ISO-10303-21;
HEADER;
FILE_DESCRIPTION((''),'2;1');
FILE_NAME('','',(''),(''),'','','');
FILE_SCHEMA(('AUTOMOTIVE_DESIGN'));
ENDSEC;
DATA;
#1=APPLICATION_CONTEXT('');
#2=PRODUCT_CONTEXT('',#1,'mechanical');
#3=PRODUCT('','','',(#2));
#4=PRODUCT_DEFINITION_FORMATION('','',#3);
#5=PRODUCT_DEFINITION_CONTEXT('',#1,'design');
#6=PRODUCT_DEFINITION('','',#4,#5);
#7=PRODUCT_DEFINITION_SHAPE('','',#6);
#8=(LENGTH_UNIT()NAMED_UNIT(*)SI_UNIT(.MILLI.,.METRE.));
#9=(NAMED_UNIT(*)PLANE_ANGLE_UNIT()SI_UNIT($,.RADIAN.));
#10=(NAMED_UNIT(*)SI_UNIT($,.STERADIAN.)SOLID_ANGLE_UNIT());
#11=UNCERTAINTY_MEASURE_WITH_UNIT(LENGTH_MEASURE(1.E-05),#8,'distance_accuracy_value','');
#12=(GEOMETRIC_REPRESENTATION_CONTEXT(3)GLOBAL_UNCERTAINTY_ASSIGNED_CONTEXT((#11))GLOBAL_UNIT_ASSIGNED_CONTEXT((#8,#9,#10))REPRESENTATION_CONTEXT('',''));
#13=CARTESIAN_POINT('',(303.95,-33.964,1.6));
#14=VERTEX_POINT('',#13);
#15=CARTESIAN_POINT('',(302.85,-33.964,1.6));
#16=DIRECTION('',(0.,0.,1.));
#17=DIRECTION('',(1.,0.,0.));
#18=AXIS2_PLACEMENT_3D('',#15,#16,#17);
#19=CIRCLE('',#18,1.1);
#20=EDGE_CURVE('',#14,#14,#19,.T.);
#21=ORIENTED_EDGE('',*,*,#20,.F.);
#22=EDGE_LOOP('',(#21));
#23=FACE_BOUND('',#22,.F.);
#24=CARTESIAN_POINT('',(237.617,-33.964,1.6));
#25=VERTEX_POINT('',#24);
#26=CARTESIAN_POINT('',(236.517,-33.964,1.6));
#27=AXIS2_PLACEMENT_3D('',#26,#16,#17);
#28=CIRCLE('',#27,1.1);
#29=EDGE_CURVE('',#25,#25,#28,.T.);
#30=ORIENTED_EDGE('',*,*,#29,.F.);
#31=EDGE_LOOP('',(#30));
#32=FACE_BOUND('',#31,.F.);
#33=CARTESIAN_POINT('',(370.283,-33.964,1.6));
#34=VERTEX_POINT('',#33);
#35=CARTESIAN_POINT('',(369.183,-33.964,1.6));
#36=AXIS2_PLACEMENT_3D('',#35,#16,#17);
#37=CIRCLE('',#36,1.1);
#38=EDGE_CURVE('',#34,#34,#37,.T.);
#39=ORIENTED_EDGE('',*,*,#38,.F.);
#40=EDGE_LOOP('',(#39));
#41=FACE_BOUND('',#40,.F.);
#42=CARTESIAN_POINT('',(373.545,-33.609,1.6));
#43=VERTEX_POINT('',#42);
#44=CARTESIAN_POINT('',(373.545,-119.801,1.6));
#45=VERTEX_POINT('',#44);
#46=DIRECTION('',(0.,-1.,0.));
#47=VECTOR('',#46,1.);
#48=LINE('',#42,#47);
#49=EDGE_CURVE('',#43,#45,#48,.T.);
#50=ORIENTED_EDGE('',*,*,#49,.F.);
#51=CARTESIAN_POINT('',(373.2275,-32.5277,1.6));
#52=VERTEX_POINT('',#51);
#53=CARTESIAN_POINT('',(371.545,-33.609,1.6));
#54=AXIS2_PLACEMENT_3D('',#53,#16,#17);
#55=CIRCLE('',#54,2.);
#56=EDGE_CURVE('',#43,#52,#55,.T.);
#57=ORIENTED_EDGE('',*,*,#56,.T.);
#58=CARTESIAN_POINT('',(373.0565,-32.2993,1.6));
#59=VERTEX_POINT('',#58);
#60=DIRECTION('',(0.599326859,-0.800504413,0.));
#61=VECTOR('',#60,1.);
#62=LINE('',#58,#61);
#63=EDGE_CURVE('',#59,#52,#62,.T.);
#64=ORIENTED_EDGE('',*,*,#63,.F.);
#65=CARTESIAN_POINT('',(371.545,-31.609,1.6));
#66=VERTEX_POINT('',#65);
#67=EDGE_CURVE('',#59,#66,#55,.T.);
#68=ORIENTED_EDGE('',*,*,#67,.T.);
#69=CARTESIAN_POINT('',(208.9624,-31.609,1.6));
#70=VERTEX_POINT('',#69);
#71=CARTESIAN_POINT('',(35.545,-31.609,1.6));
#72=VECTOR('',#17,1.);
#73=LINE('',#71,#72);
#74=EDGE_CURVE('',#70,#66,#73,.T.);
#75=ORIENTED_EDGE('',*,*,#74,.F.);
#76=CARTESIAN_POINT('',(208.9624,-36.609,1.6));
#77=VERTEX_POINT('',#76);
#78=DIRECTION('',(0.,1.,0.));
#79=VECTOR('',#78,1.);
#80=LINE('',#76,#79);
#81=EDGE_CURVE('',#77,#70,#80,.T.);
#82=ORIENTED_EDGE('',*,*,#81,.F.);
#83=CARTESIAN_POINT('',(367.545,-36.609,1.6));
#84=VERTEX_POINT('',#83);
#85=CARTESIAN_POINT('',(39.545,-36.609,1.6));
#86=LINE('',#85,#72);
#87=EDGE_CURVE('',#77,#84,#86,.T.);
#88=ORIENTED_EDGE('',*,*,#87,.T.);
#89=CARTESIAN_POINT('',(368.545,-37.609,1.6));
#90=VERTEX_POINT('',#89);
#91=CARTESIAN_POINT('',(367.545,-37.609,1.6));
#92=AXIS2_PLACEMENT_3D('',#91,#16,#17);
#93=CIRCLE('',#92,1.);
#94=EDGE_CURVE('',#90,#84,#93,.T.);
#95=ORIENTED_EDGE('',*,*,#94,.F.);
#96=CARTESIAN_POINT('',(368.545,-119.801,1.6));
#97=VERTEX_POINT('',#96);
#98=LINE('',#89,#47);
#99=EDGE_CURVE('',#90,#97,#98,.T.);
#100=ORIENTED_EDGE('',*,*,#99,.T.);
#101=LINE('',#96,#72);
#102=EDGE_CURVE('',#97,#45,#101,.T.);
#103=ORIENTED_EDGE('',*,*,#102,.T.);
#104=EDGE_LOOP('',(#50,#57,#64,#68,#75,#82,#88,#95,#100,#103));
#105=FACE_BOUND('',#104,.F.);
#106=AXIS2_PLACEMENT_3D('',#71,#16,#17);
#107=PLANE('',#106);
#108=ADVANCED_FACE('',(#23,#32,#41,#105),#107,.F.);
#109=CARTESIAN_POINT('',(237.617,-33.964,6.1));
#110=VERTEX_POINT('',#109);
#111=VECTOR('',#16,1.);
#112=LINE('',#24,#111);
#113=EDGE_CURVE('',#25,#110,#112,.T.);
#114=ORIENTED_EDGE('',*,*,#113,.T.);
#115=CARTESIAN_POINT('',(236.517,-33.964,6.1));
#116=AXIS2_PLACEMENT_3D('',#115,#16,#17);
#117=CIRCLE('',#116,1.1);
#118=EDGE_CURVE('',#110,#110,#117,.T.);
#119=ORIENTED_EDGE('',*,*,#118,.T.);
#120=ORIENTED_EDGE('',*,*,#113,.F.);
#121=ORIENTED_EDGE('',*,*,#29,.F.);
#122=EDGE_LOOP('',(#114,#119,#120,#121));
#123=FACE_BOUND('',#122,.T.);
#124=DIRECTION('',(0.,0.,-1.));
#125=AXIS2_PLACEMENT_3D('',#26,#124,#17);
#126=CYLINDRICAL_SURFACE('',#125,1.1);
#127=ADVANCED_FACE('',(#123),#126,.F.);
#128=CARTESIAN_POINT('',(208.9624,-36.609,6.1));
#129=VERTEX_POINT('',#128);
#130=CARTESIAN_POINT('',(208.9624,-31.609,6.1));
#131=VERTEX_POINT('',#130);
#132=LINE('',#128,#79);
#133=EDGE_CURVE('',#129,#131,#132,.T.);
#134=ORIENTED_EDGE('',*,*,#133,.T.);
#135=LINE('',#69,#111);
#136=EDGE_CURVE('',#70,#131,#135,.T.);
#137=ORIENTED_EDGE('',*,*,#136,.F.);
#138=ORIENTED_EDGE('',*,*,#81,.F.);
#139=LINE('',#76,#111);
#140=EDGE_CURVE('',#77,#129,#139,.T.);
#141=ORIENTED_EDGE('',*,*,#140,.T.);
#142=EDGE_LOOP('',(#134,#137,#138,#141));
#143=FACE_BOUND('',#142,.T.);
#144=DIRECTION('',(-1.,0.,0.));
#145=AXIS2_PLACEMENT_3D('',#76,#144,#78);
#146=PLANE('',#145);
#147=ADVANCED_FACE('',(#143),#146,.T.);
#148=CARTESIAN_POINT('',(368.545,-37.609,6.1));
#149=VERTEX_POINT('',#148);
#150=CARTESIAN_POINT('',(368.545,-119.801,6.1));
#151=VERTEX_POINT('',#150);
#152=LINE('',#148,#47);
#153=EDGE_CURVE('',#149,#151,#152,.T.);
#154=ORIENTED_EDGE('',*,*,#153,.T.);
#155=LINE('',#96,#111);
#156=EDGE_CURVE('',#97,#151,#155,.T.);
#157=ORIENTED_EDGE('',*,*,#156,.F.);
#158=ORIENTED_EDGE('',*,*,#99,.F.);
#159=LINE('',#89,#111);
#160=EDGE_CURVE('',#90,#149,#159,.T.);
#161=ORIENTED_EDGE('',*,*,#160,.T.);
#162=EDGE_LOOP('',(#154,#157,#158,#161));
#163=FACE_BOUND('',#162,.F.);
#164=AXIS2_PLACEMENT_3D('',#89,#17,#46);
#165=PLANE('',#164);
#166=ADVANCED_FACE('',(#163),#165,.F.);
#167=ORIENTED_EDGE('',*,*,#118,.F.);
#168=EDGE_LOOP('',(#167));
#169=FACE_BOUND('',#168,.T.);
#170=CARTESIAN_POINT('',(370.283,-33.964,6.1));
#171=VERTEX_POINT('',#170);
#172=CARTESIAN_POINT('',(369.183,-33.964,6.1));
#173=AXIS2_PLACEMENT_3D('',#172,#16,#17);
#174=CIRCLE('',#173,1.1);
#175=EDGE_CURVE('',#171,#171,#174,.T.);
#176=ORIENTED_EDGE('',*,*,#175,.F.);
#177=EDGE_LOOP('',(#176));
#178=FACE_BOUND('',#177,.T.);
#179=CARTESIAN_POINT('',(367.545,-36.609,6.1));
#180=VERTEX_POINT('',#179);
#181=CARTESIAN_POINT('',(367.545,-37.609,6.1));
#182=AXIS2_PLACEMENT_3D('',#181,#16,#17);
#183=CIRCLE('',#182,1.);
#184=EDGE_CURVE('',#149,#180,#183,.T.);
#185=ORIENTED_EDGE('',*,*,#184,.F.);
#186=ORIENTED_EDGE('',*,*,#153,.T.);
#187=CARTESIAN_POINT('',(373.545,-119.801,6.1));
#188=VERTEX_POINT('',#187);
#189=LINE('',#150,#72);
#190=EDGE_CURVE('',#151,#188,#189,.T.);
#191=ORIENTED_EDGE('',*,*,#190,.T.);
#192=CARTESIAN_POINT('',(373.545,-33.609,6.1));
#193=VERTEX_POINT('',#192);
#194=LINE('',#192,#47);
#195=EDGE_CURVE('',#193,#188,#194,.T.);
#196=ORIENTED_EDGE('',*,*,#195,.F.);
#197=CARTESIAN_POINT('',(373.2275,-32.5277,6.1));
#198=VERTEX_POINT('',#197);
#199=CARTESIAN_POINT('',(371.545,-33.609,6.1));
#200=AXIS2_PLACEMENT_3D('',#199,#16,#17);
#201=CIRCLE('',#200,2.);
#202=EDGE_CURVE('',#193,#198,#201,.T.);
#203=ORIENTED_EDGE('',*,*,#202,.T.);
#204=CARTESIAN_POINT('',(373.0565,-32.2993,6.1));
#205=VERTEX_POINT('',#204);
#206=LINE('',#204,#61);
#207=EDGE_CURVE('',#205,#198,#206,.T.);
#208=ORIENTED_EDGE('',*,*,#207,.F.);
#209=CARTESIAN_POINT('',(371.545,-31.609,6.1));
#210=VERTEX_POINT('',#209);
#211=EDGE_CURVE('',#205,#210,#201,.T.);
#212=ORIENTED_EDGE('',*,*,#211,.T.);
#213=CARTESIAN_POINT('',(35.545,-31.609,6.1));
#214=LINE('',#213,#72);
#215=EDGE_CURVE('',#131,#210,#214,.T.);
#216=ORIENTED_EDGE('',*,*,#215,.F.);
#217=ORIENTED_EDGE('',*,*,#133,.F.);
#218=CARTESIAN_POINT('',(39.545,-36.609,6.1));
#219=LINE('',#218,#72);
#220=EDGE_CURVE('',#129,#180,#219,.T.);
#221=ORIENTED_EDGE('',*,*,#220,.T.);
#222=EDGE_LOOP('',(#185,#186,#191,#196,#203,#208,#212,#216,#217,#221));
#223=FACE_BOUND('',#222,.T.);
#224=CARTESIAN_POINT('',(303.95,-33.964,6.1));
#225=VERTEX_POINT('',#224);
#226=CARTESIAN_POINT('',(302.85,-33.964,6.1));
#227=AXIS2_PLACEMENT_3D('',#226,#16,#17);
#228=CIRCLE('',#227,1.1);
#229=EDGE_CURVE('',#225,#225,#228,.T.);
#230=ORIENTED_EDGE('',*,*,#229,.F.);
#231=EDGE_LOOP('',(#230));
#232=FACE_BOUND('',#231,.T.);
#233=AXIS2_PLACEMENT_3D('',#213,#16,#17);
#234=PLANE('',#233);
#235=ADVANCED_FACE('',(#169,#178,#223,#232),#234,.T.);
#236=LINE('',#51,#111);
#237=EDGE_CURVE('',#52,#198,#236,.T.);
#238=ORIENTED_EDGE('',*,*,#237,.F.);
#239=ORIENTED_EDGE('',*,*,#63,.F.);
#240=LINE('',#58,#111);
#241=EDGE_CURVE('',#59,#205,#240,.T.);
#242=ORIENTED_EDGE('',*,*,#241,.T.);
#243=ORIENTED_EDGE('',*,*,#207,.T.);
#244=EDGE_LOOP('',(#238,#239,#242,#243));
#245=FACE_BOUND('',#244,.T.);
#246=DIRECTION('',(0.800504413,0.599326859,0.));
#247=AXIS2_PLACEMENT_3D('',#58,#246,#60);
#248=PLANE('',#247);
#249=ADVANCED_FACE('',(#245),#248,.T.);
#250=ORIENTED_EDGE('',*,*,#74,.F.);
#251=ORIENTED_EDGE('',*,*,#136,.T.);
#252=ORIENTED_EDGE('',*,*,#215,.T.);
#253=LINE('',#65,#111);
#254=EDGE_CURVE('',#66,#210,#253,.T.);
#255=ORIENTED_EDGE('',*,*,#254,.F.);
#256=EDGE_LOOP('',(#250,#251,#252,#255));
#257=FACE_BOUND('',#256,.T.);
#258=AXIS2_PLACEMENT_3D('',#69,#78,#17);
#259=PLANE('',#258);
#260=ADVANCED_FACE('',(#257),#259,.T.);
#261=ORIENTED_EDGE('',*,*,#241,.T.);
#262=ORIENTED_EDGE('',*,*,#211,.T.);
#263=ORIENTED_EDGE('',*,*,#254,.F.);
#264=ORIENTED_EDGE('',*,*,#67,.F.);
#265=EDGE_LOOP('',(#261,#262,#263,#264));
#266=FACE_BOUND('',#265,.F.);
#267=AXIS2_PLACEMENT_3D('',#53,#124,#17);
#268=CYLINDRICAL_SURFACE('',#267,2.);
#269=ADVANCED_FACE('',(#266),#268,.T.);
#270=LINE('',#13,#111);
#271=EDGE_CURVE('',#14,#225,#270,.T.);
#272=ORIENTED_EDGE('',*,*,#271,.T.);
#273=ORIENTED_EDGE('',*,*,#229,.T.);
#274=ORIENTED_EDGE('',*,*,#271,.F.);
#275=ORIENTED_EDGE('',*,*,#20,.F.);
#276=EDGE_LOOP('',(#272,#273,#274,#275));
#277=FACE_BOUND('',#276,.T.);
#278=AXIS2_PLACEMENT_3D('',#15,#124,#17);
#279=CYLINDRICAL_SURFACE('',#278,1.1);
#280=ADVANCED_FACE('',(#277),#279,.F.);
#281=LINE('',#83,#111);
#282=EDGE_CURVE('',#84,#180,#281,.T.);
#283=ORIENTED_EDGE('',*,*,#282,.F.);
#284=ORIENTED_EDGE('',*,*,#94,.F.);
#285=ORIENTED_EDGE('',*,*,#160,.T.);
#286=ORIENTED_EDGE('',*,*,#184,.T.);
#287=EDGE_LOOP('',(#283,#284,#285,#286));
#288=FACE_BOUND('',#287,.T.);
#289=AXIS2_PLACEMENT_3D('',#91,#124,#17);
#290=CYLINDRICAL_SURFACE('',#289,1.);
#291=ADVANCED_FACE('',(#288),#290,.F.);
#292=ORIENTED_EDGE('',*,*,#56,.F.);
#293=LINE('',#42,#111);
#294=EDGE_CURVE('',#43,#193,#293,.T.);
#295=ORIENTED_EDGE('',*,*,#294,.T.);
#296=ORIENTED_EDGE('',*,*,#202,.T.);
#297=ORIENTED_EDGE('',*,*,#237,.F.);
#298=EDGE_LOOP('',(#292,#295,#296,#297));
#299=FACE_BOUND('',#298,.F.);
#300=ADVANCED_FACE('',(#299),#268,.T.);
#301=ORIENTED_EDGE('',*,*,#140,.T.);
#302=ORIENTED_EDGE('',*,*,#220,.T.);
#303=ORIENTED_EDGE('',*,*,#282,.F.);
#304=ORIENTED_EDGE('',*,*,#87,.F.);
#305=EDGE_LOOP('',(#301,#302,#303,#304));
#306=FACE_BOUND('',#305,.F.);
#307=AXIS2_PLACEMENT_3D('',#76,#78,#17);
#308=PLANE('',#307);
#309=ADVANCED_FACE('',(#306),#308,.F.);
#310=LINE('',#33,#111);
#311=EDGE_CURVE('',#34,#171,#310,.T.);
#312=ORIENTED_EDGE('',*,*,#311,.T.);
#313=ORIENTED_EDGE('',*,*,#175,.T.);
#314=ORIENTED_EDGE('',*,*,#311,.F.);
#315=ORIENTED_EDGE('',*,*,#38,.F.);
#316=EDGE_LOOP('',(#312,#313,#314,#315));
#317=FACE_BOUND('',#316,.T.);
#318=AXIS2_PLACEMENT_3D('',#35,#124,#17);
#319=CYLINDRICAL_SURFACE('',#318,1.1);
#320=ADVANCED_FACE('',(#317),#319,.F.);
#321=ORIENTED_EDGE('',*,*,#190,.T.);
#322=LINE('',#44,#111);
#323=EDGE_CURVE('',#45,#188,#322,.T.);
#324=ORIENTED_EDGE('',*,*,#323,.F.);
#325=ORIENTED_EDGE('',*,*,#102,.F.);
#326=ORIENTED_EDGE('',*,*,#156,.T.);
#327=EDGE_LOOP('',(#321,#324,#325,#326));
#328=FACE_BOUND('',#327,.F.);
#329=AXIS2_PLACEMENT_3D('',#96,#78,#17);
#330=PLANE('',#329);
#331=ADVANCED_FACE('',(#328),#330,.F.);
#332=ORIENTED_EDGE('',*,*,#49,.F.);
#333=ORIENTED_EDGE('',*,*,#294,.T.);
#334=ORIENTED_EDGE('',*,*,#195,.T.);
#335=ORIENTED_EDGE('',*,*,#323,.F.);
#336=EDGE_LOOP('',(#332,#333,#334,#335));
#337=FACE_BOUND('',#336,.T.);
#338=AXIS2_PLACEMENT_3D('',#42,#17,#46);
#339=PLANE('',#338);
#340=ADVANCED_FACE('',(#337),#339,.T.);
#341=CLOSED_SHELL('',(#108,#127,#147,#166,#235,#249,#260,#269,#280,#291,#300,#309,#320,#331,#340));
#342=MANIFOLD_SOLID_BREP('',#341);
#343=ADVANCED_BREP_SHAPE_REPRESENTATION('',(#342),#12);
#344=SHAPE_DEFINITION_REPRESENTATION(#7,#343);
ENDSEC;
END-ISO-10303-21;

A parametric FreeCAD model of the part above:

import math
import FreeCAD as App
import Part
import Sketcher

V = App.Vector
Q = App.Units.Quantity

doc = App.newDocument("Part")
params = doc.addObject("Spreadsheet::Sheet", "Params")
for row, (alias, value) in enumerate([
    ("sketch1_radius", "1 mm"),
    ("sketch1_width", "5 mm"),
    ("sketch1_radius2", "2 mm"),
    ("sketch1_diameter", "2.2 mm"),
    ("pad1_length", "4.5 mm"),
], start=1):
    params.set(f"A{row}", alias)
    params.set(f"B{row}", "=" + value)
    params.setAlias(f"B{row}", alias)

body = doc.addObject("PartDesign::Body", "Body")

# Sketch on XY plane
sketch1 = body.newObject("Sketcher::SketchObject", "Sketch")
sketch1.AttachmentSupport = (doc.getObject("XY_Plane"), [""])
sketch1.MapMode = "FlatFace"
sketch1.AttachmentOffset = App.Placement(V(0, 0, 1.6), App.Rotation())
sketch1.addGeometry(Part.LineSegment(V(371.545, -31.609, 0), V(208.9624, -31.609, 0)), False)
sketch1.addGeometry(Part.LineSegment(V(208.9624, -31.609, 0), V(208.9624, -36.609, 0)), False)
sketch1.addGeometry(Part.LineSegment(V(208.9624, -36.609, 0), V(367.545, -36.609, 0)), False)
sketch1.addGeometry(Part.ArcOfCircle(Part.Circle(V(367.545, -37.609, 0), V(0, 0, 1), 1), math.radians(0), math.radians(90)), False)
sketch1.addGeometry(Part.LineSegment(V(368.545, -37.609, 0), V(368.545, -119.801, 0)), False)
sketch1.addGeometry(Part.LineSegment(V(368.545, -119.801, 0), V(373.545, -119.801, 0)), False)
sketch1.addGeometry(Part.LineSegment(V(373.545, -119.801, 0), V(373.545, -33.609, 0)), False)
sketch1.addGeometry(Part.ArcOfCircle(Part.Circle(V(371.545, -33.609, 0), V(0, 0, 1), 2), math.radians(0), math.radians(32.727825)), False)
sketch1.addGeometry(Part.LineSegment(V(373.2275, -32.5277, 0), V(373.0565, -32.2993, 0)), False)
sketch1.addGeometry(Part.ArcOfCircle(Part.Circle(V(371.545, -33.609, 0), V(0, 0, 1), 2), math.radians(40.90861), math.radians(90)), False)
sketch1.addGeometry(Part.Circle(V(236.517, -33.964, 0), V(0, 0, 1), 1.1), False)
sketch1.addGeometry(Part.Circle(V(302.85, -33.964, 0), V(0, 0, 1), 1.1), False)
sketch1.addGeometry(Part.Circle(V(369.183, -33.964, 0), V(0, 0, 1), 1.1), False)
sketch1.addConstraint(Sketcher.Constraint("Coincident", 0, 2, 1, 1))
sketch1.addConstraint(Sketcher.Constraint("Coincident", 1, 2, 2, 1))
sketch1.addConstraint(Sketcher.Constraint("Tangent", 2, 2, 3, 2))
sketch1.addConstraint(Sketcher.Constraint("Tangent", 3, 1, 4, 1))
sketch1.addConstraint(Sketcher.Constraint("Coincident", 4, 2, 5, 1))
sketch1.addConstraint(Sketcher.Constraint("Coincident", 5, 2, 6, 1))
sketch1.addConstraint(Sketcher.Constraint("Tangent", 6, 2, 7, 1))
sketch1.addConstraint(Sketcher.Constraint("Coincident", 7, 2, 8, 1))
sketch1.addConstraint(Sketcher.Constraint("Coincident", 8, 2, 9, 1))
sketch1.addConstraint(Sketcher.Constraint("Tangent", 9, 2, 0, 1))
sketch1.addConstraint(Sketcher.Constraint("Horizontal", 0))
sketch1.addConstraint(Sketcher.Constraint("Vertical", 1))
sketch1.addConstraint(Sketcher.Constraint("Horizontal", 2))
sketch1.addConstraint(Sketcher.Constraint("Vertical", 4))
sketch1.addConstraint(Sketcher.Constraint("Horizontal", 5))
sketch1.addConstraint(Sketcher.Constraint("Vertical", 6))
sketch1.addConstraint(Sketcher.Constraint("Coincident", 9, 3, 7, 3))
sketch1.addConstraint(Sketcher.Constraint("Equal", 7, 9))
sketch1.addConstraint(Sketcher.Constraint("Equal", 10, 11))
sketch1.addConstraint(Sketcher.Constraint("Equal", 11, 12))
sketch1.addConstraint(Sketcher.Constraint("Horizontal", 10, 3, 11, 3))
sketch1.addConstraint(Sketcher.Constraint("Horizontal", 11, 3, 12, 3))
sketch1.addConstraint(Sketcher.Constraint("Equal", 5, 1))
sketch1.addConstraint(Sketcher.Constraint("Radius", 3, Q("1 mm")))
sketch1.addConstraint(Sketcher.Constraint("DistanceX", 5, 1, 5, 2, Q("5 mm")))
sketch1.addConstraint(Sketcher.Constraint("Radius", 7, Q("2 mm")))
sketch1.addConstraint(Sketcher.Constraint("Diameter", 10, Q("2.2 mm")))
sketch1.addConstraint(Sketcher.Constraint("DistanceY", 4, 2, 4, 1, Q("82.192 mm")))
sketch1.addConstraint(Sketcher.Constraint("DistanceX", -1, 1, 11, 3, Q("302.85 mm")))
sketch1.addConstraint(Sketcher.Constraint("DistanceX", 0, 2, 0, 1, Q("162.5826 mm")))
sketch1.addConstraint(Sketcher.Constraint("DistanceX", -1, 1, 3, 3, Q("367.545 mm")))
sketch1.addConstraint(Sketcher.Constraint("DistanceY", 3, 3, -1, 1, Q("37.609 mm")))
sketch1.addConstraint(Sketcher.Constraint("DistanceX", -1, 1, 10, 3, Q("236.517 mm")))
sketch1.addConstraint(Sketcher.Constraint("DistanceY", 10, 3, -1, 1, Q("33.964 mm")))
sketch1.addConstraint(Sketcher.Constraint("DistanceX", -1, 1, 12, 3, Q("369.183 mm")))
sketch1.addConstraint(Sketcher.Constraint("DistanceX", 8, 2, 7, 2, Q("0.171 mm")))
sketch1.addConstraint(Sketcher.Constraint("Distance", 8, Q("0.2853 mm")))
sketch1.setExpression("Constraints[23]", "Params.sketch1_radius")
sketch1.setExpression("Constraints[24]", "Params.sketch1_width")
sketch1.setExpression("Constraints[25]", "Params.sketch1_radius2")
sketch1.setExpression("Constraints[26]", "Params.sketch1_diameter")
pad1 = body.newObject("PartDesign::Pad", "Pad")
pad1.Profile = sketch1
pad1.setExpression("Length", "Params.pad1_length")

doc.recompute()
